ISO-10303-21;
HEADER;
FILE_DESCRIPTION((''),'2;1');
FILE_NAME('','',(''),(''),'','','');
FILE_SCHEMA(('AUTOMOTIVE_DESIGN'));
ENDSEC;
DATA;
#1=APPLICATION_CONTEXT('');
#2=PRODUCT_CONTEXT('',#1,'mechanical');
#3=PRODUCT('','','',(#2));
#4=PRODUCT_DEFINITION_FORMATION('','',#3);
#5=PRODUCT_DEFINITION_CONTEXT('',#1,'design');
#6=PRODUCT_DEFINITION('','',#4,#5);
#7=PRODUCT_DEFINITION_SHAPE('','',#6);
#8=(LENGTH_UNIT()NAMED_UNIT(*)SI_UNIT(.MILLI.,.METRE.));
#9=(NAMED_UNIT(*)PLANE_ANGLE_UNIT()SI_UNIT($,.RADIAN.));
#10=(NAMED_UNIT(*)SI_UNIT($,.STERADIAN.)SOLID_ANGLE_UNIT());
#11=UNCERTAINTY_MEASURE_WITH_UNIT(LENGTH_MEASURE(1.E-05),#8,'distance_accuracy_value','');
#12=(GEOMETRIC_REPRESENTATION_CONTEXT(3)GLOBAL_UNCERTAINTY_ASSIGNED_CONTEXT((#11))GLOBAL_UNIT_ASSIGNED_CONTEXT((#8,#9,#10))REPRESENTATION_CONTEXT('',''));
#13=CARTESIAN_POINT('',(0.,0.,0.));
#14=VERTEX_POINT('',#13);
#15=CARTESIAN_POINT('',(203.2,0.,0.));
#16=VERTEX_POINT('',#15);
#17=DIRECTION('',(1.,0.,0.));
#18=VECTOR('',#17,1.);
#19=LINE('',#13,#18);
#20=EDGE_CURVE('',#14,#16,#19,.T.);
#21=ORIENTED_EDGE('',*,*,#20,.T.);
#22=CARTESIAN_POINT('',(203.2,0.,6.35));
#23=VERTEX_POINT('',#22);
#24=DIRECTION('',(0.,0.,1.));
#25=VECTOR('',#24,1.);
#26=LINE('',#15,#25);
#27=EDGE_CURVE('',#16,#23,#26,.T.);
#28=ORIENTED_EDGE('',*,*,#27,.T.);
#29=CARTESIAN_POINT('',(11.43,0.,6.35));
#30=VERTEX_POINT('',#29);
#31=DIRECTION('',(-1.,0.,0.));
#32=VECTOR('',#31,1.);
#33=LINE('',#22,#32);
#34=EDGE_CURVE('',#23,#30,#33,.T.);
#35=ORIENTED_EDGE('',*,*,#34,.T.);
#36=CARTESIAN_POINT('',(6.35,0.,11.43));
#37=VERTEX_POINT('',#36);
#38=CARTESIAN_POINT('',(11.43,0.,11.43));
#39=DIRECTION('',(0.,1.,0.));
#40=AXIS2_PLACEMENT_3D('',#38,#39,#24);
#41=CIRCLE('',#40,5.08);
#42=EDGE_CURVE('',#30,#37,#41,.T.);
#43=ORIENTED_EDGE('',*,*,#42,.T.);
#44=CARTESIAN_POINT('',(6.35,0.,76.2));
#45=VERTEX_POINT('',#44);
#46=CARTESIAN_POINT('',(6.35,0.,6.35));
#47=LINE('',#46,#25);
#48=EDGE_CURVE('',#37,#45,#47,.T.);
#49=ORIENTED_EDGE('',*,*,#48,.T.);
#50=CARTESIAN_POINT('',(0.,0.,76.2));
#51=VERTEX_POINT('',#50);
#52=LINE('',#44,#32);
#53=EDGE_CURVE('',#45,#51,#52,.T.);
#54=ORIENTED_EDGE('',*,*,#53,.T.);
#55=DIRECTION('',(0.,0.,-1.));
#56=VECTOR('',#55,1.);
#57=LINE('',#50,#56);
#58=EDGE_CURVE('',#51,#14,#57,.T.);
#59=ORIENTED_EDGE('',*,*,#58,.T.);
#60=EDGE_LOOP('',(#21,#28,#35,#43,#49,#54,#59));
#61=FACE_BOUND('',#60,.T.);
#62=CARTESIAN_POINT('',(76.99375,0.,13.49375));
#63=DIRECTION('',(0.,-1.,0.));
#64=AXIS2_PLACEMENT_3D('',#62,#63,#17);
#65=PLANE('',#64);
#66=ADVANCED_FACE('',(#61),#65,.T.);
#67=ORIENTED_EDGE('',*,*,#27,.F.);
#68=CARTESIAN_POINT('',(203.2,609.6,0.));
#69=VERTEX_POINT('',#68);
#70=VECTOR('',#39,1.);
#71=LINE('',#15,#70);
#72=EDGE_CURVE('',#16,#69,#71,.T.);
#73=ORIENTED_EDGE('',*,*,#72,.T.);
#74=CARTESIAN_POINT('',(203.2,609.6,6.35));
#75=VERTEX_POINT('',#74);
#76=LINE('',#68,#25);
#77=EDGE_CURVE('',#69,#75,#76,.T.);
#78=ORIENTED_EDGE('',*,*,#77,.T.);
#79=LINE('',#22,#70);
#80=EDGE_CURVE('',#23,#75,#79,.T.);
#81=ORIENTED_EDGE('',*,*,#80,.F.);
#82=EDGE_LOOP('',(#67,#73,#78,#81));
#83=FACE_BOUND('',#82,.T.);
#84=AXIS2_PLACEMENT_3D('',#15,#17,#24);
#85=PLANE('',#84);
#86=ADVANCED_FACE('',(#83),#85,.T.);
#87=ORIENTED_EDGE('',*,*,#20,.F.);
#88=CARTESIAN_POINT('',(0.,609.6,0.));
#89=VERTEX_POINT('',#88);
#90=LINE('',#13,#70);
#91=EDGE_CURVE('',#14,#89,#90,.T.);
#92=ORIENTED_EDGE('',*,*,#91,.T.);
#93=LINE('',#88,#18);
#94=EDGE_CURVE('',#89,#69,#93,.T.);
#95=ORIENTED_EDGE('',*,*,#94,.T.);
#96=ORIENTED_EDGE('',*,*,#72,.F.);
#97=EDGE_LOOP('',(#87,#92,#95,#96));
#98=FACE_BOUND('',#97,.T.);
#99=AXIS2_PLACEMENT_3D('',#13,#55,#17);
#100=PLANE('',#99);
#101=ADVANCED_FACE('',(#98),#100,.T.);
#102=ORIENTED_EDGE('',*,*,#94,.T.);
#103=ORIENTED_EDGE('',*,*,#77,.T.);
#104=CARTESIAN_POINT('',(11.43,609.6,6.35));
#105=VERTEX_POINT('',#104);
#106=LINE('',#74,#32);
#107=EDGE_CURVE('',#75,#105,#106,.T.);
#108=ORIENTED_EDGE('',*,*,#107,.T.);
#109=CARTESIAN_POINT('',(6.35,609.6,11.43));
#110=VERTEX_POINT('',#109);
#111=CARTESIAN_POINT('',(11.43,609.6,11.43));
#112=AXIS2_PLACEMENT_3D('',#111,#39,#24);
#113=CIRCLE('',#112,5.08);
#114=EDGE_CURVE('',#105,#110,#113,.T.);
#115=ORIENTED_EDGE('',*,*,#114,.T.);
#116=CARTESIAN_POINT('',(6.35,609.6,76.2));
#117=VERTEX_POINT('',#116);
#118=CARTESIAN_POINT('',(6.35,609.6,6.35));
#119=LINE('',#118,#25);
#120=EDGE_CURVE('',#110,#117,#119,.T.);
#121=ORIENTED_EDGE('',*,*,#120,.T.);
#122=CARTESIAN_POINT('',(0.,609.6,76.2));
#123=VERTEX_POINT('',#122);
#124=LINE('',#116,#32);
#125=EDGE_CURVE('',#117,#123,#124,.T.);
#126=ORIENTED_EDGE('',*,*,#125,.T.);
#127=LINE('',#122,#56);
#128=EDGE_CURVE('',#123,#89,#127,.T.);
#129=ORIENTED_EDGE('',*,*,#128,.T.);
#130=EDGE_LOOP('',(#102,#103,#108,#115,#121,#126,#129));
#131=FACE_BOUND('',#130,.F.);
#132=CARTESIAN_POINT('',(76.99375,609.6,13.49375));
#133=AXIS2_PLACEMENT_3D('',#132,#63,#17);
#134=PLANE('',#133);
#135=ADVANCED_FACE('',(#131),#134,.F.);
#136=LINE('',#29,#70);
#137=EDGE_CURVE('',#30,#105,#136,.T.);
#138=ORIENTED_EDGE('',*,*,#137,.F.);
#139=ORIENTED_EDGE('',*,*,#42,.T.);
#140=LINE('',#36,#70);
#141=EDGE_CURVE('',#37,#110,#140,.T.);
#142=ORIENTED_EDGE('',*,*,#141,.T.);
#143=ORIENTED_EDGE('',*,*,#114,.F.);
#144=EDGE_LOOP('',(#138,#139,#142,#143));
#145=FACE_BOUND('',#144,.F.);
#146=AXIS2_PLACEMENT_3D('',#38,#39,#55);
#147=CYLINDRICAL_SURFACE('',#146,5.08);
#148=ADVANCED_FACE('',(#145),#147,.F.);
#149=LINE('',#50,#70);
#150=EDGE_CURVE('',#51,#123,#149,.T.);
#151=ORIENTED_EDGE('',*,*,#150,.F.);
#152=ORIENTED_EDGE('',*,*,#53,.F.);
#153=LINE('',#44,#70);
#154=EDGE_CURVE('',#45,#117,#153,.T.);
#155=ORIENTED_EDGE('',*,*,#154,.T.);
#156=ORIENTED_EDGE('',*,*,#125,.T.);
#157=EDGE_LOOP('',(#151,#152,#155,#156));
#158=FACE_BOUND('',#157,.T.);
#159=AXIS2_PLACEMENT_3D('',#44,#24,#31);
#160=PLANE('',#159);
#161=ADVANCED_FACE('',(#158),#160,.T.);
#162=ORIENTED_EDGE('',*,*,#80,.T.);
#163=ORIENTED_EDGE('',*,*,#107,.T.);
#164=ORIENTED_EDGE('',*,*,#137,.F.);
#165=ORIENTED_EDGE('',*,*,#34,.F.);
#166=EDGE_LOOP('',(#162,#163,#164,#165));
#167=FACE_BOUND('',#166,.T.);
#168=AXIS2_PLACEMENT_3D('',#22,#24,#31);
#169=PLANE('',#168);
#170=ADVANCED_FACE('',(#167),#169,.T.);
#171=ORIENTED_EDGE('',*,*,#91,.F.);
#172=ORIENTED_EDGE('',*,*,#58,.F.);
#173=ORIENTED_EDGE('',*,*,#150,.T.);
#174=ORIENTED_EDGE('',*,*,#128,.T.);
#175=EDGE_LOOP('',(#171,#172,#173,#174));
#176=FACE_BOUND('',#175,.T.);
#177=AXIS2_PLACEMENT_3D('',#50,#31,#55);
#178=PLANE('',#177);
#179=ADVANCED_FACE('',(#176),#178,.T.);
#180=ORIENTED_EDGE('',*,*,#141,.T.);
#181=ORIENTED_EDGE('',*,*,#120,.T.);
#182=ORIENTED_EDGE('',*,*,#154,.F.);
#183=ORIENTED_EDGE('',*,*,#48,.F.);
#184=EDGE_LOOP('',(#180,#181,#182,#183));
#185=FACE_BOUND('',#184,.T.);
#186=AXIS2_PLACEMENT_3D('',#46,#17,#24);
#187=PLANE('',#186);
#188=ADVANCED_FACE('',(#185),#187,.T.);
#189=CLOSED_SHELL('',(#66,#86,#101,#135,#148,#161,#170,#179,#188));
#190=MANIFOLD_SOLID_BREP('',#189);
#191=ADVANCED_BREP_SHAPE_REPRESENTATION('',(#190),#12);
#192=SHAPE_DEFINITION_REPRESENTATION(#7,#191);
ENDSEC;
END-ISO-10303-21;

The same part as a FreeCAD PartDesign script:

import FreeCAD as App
import Part
import Sketcher
Q = App.Units.Quantity


def edges_at(feature, points):
    """Names of the edges that pass closest to the given points."""
    edges = feature.Shape.Edges
    near = lambda p: min(range(len(edges)), key=lambda i: edges[i].distToShape(Part.Vertex(*p))[0])
    return sorted({f"Edge{near(p) + 1}" for p in points})


def add_polygon(sketch, points):
    """Adds a closed chain of lines whose ends are joined by coincident constraints."""
    first, n = sketch.GeometryCount, len(points)
    for a, b in zip(points, points[1:] + points[:1]):
        sketch.addGeometry(Part.LineSegment(App.Vector(*a, 0), App.Vector(*b, 0)), False)
    for i in range(n):
        sketch.addConstraint(Sketcher.Constraint("Coincident", first + i, 2, first + (i + 1) % n, 1))

doc = App.newDocument("Part")
body = doc.addObject("PartDesign::Body", "Body")

# Sketch on XZ plane
sketch1 = body.newObject("Sketcher::SketchObject", "Sketch")
sketch1.AttachmentSupport = (doc.getObject("XZ_Plane"), [""])
sketch1.MapMode = "FlatFace"
add_polygon(sketch1, [(0, 76), (0, 0), (203, 0), (203, 6), (6, 6), (6, 76)])  # lines 0-5
sketch1.addConstraint([
    Sketcher.Constraint("Vertical", 0),
    Sketcher.Constraint("Horizontal", 1),
    Sketcher.Constraint("Vertical", 2),
    Sketcher.Constraint("Horizontal", 3),
    Sketcher.Constraint("Vertical", 4),
    Sketcher.Constraint("Horizontal", 5),
    Sketcher.Constraint("Coincident", 0, 2, -1, 1),
    Sketcher.Constraint("Equal", 5, 2),
    Sketcher.Constraint("DistanceX", 1, 1, 1, 2, Q("8 in")),
    Sketcher.Constraint("DistanceY", 0, 2, 0, 1, Q("3 in")),
    Sketcher.Constraint("DistanceX", 3, 2, 3, 1, Q("7.75 in")),
])
pad1 = body.newObject("PartDesign::Pad", "Pad")
pad1.Profile = sketch1
pad1.Length = Q("24 in")
pad1.Reversed = True
doc.recompute()

fillet = body.newObject("PartDesign::Fillet", "Fillet")
fillet.Base = (pad1, edges_at(pad1, [(6.35, 304.8, 6.35)]))
fillet.Radius = Q("0.2 in")

doc.recompute()
